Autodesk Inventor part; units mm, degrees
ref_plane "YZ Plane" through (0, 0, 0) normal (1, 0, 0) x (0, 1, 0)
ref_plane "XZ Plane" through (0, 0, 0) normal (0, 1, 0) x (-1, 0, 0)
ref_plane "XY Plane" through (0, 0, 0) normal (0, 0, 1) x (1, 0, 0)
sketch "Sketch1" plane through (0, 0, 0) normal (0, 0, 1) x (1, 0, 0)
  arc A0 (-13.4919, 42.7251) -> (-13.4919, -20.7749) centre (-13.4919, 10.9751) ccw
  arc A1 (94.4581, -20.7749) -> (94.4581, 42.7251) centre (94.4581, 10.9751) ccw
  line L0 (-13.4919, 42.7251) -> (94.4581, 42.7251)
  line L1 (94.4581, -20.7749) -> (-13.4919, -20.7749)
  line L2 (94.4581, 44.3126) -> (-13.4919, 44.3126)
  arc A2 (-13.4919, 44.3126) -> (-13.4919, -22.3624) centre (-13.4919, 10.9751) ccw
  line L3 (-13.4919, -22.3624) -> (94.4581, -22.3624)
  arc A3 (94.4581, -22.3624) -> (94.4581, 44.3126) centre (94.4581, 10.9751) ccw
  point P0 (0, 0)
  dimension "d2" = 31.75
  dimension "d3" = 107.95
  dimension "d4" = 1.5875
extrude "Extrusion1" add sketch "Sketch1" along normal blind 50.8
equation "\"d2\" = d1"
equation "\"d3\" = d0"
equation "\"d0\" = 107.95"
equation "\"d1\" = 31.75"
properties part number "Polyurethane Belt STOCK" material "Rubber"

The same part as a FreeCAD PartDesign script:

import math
import FreeCAD as App
import Part
import Sketcher
from FreeCAD import Vector
Q = App.Units.Quantity

doc = App.newDocument("Part")
body = doc.addObject("PartDesign::Body", "Body")

# Sketch on XY plane
sketch1 = body.newObject("Sketcher::SketchObject", "Sketch")
sketch1.AttachmentSupport = (doc.getObject("XY_Plane"), [""])
sketch1.MapMode = "FlatFace"
sketch1.addGeometry([
    Part.ArcOfCircle(Part.Circle(Vector(94, 11, 0), Vector(0, 0, 1), 33), math.radians(-90), math.radians(90)),  # 0
    Part.LineSegment(Vector(94, 44, 0), Vector(-13, 44, 0)),  # 1
    Part.ArcOfCircle(Part.Circle(Vector(-13, 11, 0), Vector(0, 0, 1), 33), math.radians(90), math.radians(270)),  # 2
    Part.LineSegment(Vector(-13, -22, 0), Vector(94, -22, 0)),  # 3
    Part.ArcOfCircle(Part.Circle(Vector(-13, 11, 0), Vector(0, 0, 1), 32), math.radians(90), math.radians(270)),  # 4
    Part.LineSegment(Vector(-13, 43, 0), Vector(94, 43, 0)),  # 5
    Part.ArcOfCircle(Part.Circle(Vector(94, 11, 0), Vector(0, 0, 1), 32), math.radians(-90), math.radians(90)),  # 6
    Part.LineSegment(Vector(94, -21, 0), Vector(-13, -21, 0)),  # 7
], False)
sketch1.addConstraint([
    Sketcher.Constraint("Tangent", 0, 2, 1, 1),
    Sketcher.Constraint("Tangent", 1, 2, 2, 1),
    Sketcher.Constraint("Tangent", 2, 2, 3, 1),
    Sketcher.Constraint("Tangent", 3, 2, 0, 1),
    Sketcher.Constraint("Tangent", 4, 1, 5, 1),
    Sketcher.Constraint("Tangent", 5, 2, 6, 2),
    Sketcher.Constraint("Tangent", 6, 1, 7, 1),
    Sketcher.Constraint("Tangent", 7, 2, 4, 2),
    Sketcher.Constraint("Horizontal", 1),
    Sketcher.Constraint("Horizontal", 3),
    Sketcher.Constraint("Horizontal", 5),
    Sketcher.Constraint("Horizontal", 7),
    Sketcher.Constraint("Coincident", 4, 3, 2, 3),
    Sketcher.Constraint("Vertical", 6, 3, 0, 2),
    Sketcher.Constraint("Radius", 4, Q("1.25 in")),
    Sketcher.Constraint("DistanceX", 1, 2, 1, 1, Q("4.25 in")),
    Sketcher.Constraint("Radius", 0, Q("1.3125 in")),
    Sketcher.Constraint("DistanceY", -1, 1, 0, 3, Q("0.4321 in")),
    Sketcher.Constraint("DistanceX", -1, 1, 0, 3, Q("94.458 mm")),
])
pad1 = body.newObject("PartDesign::Pad", "Pad")
pad1.Profile = sketch1
pad1.Length = Q("2 in")

doc.recompute()
